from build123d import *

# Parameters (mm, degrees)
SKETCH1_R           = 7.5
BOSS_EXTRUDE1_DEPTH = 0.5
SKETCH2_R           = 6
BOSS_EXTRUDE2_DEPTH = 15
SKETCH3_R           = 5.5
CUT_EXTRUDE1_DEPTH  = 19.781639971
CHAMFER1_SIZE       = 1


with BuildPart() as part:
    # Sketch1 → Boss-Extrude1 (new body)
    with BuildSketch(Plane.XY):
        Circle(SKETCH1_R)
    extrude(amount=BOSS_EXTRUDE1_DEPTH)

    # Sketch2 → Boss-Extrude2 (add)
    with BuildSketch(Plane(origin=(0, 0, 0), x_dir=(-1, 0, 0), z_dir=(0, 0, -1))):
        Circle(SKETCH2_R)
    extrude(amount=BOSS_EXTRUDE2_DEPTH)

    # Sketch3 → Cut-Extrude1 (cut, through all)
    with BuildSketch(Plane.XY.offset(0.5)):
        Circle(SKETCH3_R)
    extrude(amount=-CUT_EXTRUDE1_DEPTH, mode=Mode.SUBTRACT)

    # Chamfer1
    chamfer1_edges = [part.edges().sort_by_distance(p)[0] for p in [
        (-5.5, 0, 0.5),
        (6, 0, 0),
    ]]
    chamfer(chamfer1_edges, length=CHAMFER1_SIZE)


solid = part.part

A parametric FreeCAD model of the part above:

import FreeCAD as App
import Part
import Sketcher
from FreeCAD import Vector


def edges_at(feature, points):
    """Names of the edges that pass closest to the given points."""
    edges = feature.Shape.Edges
    near = lambda p: min(range(len(edges)), key=lambda i: edges[i].distToShape(Part.Vertex(*p))[0])
    return sorted({f"Edge{near(p) + 1}" for p in points})

doc = App.newDocument("Part")
body = doc.addObject("PartDesign::Body", "Body")

sketch1 = body.newObject("Sketcher::SketchObject", "Sketch")
sketch1.AttachmentSupport = (doc.getObject("XY_Plane"), [""])
sketch1.MapMode = "FlatFace"
sketch1.addGeometry(Part.Circle(Vector(0, 0, 0), Vector(0, 0, 1), 8), False)
sketch1.addConstraint(Sketcher.Constraint("Coincident", 0, 3, -1, 1))
sketch1.addConstraint(Sketcher.Constraint("Diameter", 0, 15.0))
pad1 = body.newObject("PartDesign::Pad", "Pad")
pad1.Profile = sketch1
pad1.Length = 0.5

sketch2 = body.newObject("Sketcher::SketchObject", "Sketch001")
sketch2.AttachmentSupport = (doc.getObject("XY_Plane"), [""])
sketch2.MapMode = "FlatFace"
sketch2.addGeometry(Part.Circle(Vector(0, 0, 0), Vector(0, 0, 1), 6), False)
sketch2.addConstraint(Sketcher.Constraint("Coincident", 0, 3, -1, 1))
sketch2.addConstraint(Sketcher.Constraint("Diameter", 0, 12.0))
pad2 = body.newObject("PartDesign::Pad", "Pad001")
pad2.Profile = sketch2
pad2.Length = 15
pad2.Reversed = True

sketch3 = body.newObject("Sketcher::SketchObject", "Sketch002")
sketch3.AttachmentSupport = (doc.getObject("XY_Plane"), [""])
sketch3.MapMode = "FlatFace"
sketch3.AttachmentOffset = App.Placement(Vector(0, 0, 0.5), App.Rotation())
sketch3.addGeometry(Part.Circle(Vector(0, 0, 0), Vector(0, 0, 1), 6), False)
sketch3.addConstraint(Sketcher.Constraint("Coincident", 0, 3, -1, 1))
sketch3.addConstraint(Sketcher.Constraint("Diameter", 0, 11.0))
pocket1 = body.newObject("PartDesign::Pocket", "Pocket")
pocket1.Profile = sketch3
pocket1.Type = "ThroughAll"
doc.recompute()

chamfer = body.newObject("PartDesign::Chamfer", "Chamfer")
chamfer.Base = (pocket1, edges_at(pocket1, [(-5.5, 0, 0.5), (6, 0, 0)]))
chamfer.Size = 1

doc.recompute()
